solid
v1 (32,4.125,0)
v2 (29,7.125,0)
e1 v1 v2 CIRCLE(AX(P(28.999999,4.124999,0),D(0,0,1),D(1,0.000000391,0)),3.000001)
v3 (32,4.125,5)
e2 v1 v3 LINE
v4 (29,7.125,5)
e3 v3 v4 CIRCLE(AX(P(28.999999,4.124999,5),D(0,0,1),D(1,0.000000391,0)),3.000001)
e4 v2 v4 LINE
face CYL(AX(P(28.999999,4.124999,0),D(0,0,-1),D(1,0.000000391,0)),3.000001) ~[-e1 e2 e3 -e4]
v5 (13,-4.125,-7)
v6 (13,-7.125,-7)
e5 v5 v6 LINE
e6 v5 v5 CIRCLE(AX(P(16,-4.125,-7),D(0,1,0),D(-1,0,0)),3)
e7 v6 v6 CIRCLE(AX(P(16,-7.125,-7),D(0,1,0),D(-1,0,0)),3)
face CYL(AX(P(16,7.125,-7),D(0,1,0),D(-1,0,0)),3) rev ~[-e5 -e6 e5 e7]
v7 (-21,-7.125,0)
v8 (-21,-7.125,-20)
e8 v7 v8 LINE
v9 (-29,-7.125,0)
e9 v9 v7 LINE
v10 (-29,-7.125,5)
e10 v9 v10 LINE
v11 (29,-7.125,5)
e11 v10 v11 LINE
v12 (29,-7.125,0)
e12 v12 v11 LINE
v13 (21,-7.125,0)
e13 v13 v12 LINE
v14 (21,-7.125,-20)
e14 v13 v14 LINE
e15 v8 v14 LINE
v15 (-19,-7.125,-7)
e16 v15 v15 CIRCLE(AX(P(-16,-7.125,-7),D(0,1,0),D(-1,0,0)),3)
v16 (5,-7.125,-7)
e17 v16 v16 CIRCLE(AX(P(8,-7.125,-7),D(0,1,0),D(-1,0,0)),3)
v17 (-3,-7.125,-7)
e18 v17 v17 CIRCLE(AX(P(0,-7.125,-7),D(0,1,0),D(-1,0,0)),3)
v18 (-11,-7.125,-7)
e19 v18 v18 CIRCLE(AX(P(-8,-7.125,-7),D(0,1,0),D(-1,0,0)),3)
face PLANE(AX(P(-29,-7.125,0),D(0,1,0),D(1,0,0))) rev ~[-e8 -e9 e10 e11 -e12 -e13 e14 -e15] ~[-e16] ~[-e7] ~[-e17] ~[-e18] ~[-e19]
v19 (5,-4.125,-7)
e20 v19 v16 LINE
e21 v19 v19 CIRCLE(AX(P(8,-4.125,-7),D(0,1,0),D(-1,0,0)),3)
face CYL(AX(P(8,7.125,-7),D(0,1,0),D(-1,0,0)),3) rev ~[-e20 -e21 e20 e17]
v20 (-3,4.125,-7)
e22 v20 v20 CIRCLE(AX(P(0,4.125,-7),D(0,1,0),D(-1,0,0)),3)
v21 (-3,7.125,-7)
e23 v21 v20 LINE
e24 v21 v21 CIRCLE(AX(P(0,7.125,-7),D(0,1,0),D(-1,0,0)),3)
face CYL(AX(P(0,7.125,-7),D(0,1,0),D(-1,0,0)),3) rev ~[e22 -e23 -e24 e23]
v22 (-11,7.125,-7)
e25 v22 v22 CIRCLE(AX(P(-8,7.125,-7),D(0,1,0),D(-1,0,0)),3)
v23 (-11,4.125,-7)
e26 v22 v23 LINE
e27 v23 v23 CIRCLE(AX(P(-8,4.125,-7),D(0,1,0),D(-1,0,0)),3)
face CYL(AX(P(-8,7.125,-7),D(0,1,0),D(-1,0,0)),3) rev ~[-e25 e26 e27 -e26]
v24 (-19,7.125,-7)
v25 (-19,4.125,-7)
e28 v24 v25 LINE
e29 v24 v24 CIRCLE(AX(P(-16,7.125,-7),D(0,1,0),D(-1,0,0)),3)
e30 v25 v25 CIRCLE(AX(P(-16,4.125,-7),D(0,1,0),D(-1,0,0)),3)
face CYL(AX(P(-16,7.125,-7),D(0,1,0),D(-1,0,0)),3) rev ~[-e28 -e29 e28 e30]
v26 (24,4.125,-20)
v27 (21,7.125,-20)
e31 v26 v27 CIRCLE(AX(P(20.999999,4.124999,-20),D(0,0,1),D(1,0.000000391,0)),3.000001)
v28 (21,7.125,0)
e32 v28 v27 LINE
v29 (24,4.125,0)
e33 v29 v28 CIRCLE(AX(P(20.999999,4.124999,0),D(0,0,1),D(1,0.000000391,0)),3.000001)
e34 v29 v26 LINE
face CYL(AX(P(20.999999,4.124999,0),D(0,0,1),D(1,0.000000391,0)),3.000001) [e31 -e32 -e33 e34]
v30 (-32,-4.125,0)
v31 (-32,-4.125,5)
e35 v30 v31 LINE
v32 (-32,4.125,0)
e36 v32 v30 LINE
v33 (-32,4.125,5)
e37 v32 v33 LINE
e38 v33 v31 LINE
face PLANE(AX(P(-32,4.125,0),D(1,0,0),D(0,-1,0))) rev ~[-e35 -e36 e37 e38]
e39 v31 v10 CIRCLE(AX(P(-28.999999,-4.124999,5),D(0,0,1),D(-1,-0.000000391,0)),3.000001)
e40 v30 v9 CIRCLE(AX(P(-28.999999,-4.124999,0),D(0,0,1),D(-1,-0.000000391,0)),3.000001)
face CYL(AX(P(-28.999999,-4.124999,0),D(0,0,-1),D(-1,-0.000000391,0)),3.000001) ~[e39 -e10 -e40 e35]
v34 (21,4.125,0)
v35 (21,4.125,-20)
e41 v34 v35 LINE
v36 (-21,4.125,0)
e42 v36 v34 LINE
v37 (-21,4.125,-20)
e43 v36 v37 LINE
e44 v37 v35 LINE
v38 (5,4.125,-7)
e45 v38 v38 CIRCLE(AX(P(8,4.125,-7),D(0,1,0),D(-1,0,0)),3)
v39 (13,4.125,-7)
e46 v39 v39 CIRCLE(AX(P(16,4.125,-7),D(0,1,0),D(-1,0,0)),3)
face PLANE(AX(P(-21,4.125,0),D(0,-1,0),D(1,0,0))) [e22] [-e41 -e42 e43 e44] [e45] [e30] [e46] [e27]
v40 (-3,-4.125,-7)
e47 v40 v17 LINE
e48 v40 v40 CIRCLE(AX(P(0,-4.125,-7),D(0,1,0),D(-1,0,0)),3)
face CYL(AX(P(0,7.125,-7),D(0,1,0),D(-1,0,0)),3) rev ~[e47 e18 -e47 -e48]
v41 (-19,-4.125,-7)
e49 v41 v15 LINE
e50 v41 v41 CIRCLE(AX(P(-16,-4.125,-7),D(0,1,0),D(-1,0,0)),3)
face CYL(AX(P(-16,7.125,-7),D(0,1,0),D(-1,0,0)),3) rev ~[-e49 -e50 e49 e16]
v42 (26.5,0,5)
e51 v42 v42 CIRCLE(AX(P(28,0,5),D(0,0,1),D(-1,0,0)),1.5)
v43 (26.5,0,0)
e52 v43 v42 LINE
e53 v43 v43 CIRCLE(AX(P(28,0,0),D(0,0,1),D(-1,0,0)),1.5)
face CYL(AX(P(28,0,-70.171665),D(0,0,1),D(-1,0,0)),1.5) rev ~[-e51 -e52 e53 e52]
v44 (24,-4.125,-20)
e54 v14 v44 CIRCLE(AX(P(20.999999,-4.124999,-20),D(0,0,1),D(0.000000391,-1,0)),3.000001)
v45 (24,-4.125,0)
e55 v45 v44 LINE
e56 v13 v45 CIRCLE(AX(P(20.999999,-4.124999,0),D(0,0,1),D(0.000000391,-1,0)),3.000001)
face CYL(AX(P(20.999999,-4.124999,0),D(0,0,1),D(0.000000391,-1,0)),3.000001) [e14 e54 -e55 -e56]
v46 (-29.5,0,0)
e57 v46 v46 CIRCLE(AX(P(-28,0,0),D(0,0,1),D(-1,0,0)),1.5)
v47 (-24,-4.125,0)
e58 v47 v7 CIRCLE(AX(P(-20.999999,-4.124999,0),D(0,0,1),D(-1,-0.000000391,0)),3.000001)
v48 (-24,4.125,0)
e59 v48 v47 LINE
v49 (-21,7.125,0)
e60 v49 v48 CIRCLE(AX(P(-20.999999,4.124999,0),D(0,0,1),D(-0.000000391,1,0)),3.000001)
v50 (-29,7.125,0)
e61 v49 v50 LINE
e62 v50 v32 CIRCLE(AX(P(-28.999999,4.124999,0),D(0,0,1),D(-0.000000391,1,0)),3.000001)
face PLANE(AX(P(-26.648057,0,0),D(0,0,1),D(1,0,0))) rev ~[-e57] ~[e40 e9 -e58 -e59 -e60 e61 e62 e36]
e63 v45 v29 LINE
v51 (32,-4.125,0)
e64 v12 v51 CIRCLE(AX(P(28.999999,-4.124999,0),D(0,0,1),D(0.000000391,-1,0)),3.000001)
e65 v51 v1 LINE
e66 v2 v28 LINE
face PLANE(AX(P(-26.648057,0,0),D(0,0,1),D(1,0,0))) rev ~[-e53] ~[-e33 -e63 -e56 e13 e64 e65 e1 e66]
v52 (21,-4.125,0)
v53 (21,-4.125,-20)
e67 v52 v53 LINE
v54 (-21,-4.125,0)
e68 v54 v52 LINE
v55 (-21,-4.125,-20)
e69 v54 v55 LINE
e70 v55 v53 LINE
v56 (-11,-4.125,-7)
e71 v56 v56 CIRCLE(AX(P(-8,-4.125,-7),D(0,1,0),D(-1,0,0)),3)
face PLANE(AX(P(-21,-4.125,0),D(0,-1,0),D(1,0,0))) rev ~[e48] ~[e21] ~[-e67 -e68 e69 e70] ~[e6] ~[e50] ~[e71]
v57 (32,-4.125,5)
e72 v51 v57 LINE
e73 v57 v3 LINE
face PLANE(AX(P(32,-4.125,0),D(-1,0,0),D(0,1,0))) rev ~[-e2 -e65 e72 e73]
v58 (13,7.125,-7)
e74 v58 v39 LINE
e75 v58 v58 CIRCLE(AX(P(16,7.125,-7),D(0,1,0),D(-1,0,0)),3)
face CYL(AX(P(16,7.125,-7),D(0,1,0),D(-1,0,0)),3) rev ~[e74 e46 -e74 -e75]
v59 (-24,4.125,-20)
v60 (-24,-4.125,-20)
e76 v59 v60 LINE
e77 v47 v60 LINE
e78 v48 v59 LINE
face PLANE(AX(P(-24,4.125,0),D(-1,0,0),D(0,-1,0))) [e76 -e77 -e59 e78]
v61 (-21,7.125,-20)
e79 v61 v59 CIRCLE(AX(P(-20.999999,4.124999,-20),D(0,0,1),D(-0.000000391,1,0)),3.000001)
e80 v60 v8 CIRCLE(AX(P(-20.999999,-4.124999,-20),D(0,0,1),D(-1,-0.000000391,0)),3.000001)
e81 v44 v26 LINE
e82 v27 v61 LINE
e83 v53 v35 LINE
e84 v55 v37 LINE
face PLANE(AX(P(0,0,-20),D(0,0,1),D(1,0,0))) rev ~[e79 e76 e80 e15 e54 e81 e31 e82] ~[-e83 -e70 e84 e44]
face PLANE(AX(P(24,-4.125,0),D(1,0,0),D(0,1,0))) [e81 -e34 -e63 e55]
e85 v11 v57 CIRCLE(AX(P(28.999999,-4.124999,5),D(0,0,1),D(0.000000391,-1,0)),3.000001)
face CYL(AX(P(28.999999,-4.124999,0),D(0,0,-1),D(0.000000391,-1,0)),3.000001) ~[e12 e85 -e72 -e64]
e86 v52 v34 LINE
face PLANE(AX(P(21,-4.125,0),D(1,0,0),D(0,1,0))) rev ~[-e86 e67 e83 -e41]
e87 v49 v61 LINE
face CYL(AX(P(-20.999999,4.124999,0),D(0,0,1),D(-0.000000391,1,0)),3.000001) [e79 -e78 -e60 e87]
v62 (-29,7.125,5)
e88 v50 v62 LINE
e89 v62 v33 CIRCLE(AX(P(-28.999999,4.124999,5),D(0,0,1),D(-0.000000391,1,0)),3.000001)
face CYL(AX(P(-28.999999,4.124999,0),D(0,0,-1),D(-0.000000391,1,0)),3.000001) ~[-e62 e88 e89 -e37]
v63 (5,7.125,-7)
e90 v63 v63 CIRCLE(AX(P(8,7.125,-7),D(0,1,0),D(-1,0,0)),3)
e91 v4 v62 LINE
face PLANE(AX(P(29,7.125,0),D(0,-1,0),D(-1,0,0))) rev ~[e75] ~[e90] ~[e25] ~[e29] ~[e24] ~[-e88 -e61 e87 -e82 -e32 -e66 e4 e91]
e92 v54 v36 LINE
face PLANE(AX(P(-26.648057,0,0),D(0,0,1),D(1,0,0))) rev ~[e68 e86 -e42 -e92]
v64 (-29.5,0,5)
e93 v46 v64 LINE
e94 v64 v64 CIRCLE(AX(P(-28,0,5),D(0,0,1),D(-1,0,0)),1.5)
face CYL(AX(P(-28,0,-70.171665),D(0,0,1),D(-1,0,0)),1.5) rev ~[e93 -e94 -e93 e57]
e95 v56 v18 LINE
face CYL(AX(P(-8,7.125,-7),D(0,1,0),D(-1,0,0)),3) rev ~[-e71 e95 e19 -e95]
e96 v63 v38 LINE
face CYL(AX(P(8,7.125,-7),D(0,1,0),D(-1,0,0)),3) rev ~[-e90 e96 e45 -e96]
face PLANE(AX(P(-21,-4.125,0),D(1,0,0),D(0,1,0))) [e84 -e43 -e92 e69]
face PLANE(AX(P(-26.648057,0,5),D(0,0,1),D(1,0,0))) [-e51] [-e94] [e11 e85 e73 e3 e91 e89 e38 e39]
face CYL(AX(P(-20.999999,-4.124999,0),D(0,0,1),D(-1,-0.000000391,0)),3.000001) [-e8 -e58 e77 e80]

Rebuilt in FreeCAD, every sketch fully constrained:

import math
import FreeCAD as App
import Part
import Sketcher

V = App.Vector

doc = App.newDocument("Part")
body = doc.addObject("PartDesign::Body", "Body")

# Sketch on XY plane
sketch1 = doc.addObject("Sketcher::SketchObject", "Sketch")
body.addObject(sketch1)
sketch1.AttachmentSupport = (doc.XY_Plane, [""])
sketch1.MapMode = "FlatFace"
sketch1.addGeometry([
    Part.ArcOfCircle(Part.Circle(V(-28.999999, 4.124999, 0), V(0, 0, 1), 3.000001), math.radians(90.000022), math.radians(179.999978)),  # 0
    Part.LineSegment(V(-32, 4.125, 0), V(-32, -4.125, 0)),  # 1
    Part.ArcOfCircle(Part.Circle(V(-28.999999, -4.124999, 0), V(0, 0, 1), 3.000001), math.radians(-179.999978), math.radians(-90.000022)),  # 2
    Part.LineSegment(V(-29, -7.125, 0), V(29, -7.125, 0)),  # 3
    Part.ArcOfCircle(Part.Circle(V(28.999999, -4.124999, 0), V(0, 0, 1), 3.000001), math.radians(-89.999978), math.radians(-0.000022)),  # 4
    Part.LineSegment(V(32, -4.125, 0), V(32, 4.125, 0)),  # 5
    Part.ArcOfCircle(Part.Circle(V(28.999999, 4.124999, 0), V(0, 0, 1), 3.000001), math.radians(0.000022), math.radians(89.999978)),  # 6
    Part.LineSegment(V(29, 7.125, 0), V(-29, 7.125, 0)),  # 7
], False)
sketch1.addConstraint([
    Sketcher.Constraint("Tangent", 0, 2, 1, 1),
    Sketcher.Constraint("Tangent", 1, 2, 2, 1),
    Sketcher.Constraint("Tangent", 2, 2, 3, 1),
    Sketcher.Constraint("Tangent", 3, 2, 4, 1),
    Sketcher.Constraint("Tangent", 4, 2, 5, 1),
    Sketcher.Constraint("Tangent", 5, 2, 6, 1),
    Sketcher.Constraint("Tangent", 6, 2, 7, 1),
    Sketcher.Constraint("Tangent", 7, 2, 0, 1),
    Sketcher.Constraint("Vertical", 1),
    Sketcher.Constraint("Horizontal", 3),
    Sketcher.Constraint("Vertical", 5),
    Sketcher.Constraint("Horizontal", 7),
    Sketcher.Constraint("Equal", 0, 2),
    Sketcher.Constraint("Equal", 2, 4),
    Sketcher.Constraint("Equal", 4, 6),
    Sketcher.Constraint("Symmetric", 0, 3, 4, 3, -1, 1),
    Sketcher.Constraint("Radius", 0, 3.000001),
    Sketcher.Constraint("DistanceX", 3, 1, 3, 2, 58.0),
    Sketcher.Constraint("DistanceY", 1, 2, 1, 1, 8.25),
])
pad1 = doc.addObject("PartDesign::Pad", "Pad")
body.addObject(pad1)
pad1.Profile = sketch1
pad1.Length = 5

# Sketch on XY plane
sketch2 = doc.addObject("Sketcher::SketchObject", "Sketch001")
body.addObject(sketch2)
sketch2.AttachmentSupport = (doc.XY_Plane, [""])
sketch2.MapMode = "FlatFace"
sketch2.addGeometry([
    Part.ArcOfCircle(Part.Circle(V(20.999999, 4.124999, 0), V(0, 0, 1), 3.000001), math.radians(0.000022), math.radians(89.999978)),  # 0
    Part.LineSegment(V(21, 7.125, 0), V(-21, 7.125, 0)),  # 1
    Part.ArcOfCircle(Part.Circle(V(-20.999999, 4.124999, 0), V(0, 0, 1), 3.000001), math.radians(90.000022), math.radians(179.999978)),  # 2
    Part.LineSegment(V(-24, 4.125, 0), V(-24, -4.125, 0)),  # 3
    Part.ArcOfCircle(Part.Circle(V(-20.999999, -4.124999, 0), V(0, 0, 1), 3.000001), math.radians(-179.999978), math.radians(-90.000022)),  # 4
    Part.LineSegment(V(-21, -7.125, 0), V(21, -7.125, 0)),  # 5
    Part.ArcOfCircle(Part.Circle(V(20.999999, -4.124999, 0), V(0, 0, 1), 3.000001), math.radians(-89.999978), math.radians(-0.000022)),  # 6
    Part.LineSegment(V(24, -4.125, 0), V(24, 4.125, 0)),  # 7
    Part.LineSegment(V(21, -4.125, 0), V(-21, -4.125, 0)),  # 8
    Part.LineSegment(V(-21, -4.125, 0), V(-21, 4.125, 0)),  # 9
    Part.LineSegment(V(-21, 4.125, 0), V(21, 4.125, 0)),  # 10
    Part.LineSegment(V(21, 4.125, 0), V(21, -4.125, 0)),  # 11
], False)
sketch2.addConstraint([
    Sketcher.Constraint("Tangent", 0, 2, 1, 1),
    Sketcher.Constraint("Tangent", 1, 2, 2, 1),
    Sketcher.Constraint("Tangent", 2, 2, 3, 1),
    Sketcher.Constraint("Tangent", 3, 2, 4, 1),
    Sketcher.Constraint("Tangent", 4, 2, 5, 1),
    Sketcher.Constraint("Tangent", 5, 2, 6, 1),
    Sketcher.Constraint("Tangent", 6, 2, 7, 1),
    Sketcher.Constraint("Tangent", 7, 2, 0, 1),
    Sketcher.Constraint("Coincident", 8, 2, 9, 1),
    Sketcher.Constraint("Coincident", 9, 2, 10, 1),
    Sketcher.Constraint("Coincident", 10, 2, 11, 1),
    Sketcher.Constraint("Coincident", 11, 2, 8, 1),
    Sketcher.Constraint("Horizontal", 1),
    Sketcher.Constraint("Vertical", 3),
    Sketcher.Constraint("Horizontal", 5),
    Sketcher.Constraint("Vertical", 7),
    Sketcher.Constraint("Horizontal", 8),
    Sketcher.Constraint("Vertical", 9),
    Sketcher.Constraint("Horizontal", 10),
    Sketcher.Constraint("Vertical", 11),
    Sketcher.Constraint("Coincident", 8, 2, 4, 3),
    Sketcher.Constraint("Coincident", 9, 2, 2, 3),
    Sketcher.Constraint("Coincident", 10, 2, 0, 3),
    Sketcher.Constraint("Equal", 4, 6),
    Sketcher.Constraint("Symmetric", 0, 3, 4, 3, -1, 1),
    Sketcher.Constraint("Radius", 0, 3.000001),
    Sketcher.Constraint("DistanceX", 1, 2, 1, 1, 42.0),
    Sketcher.Constraint("DistanceY", 3, 2, 3, 1, 8.25),
])
pad2 = doc.addObject("PartDesign::Pad", "Pad001")
body.addObject(pad2)
pad2.Profile = sketch2
pad2.Length = 20
pad2.Reversed = True

# Sketch on XZ plane
sketch3 = doc.addObject("Sketcher::SketchObject", "Sketch002")
body.addObject(sketch3)
sketch3.AttachmentSupport = (doc.XZ_Plane, [""])
sketch3.MapMode = "FlatFace"
sketch3.AttachmentOffset = App.Placement(V(0, 0, -7.125), App.Rotation())
sketch3.addGeometry([
    Part.Circle(V(16, -7, 0), V(0, 0, 1), 3),  # 0
    Part.Circle(V(8, -7, 0), V(0, 0, 1), 3),  # 1
    Part.Circle(V(0, -7, 0), V(0, 0, 1), 3),  # 2
    Part.Circle(V(-8, -7, 0), V(0, 0, 1), 3),  # 3
    Part.Circle(V(-16, -7, 0), V(0, 0, 1), 3),  # 4
], False)
sketch3.addConstraint([
    Sketcher.Constraint("Equal", 0, 1),
    Sketcher.Constraint("Equal", 1, 2),
    Sketcher.Constraint("Equal", 2, 3),
    Sketcher.Constraint("Equal", 3, 4),
    Sketcher.Constraint("Symmetric", 1, 3, 3, 3, -2),
    Sketcher.Constraint("Symmetric", 0, 3, 4, 3, -2),
    Sketcher.Constraint("PointOnObject", 2, 3, -2),
    Sketcher.Constraint("Horizontal", 0, 3, 1, 3),
    Sketcher.Constraint("Horizontal", 1, 3, 2, 3),
    Sketcher.Constraint("Diameter", 0, 6.0),
    Sketcher.Constraint("DistanceX", -1, 1, 0, 3, 16.0),
    Sketcher.Constraint("DistanceY", 0, 3, -1, 1, 7.0),
    Sketcher.Constraint("DistanceX", -1, 1, 1, 3, 8.0),
])
pocket1 = doc.addObject("PartDesign::Pocket", "Pocket")
body.addObject(pocket1)
pocket1.Profile = sketch3
pocket1.Length = 25
pocket1.Reversed = True

# Sketch on XY plane
sketch4 = doc.addObject("Sketcher::SketchObject", "Sketch003")
body.addObject(sketch4)
sketch4.AttachmentSupport = (doc.XY_Plane, [""])
sketch4.MapMode = "FlatFace"
sketch4.addGeometry([
    Part.Circle(V(28, 0, 0), V(0, 0, 1), 1.5),
    Part.Circle(V(-28, 0, 0), V(0, 0, 1), 1.5),
], False)
sketch4.addConstraint([
    Sketcher.Constraint("Equal", 0, 1),
    Sketcher.Constraint("Symmetric", 0, 3, 1, 3, -1, 1),
    Sketcher.Constraint("PointOnObject", 0, 3, -1),
    Sketcher.Constraint("Diameter", 0, 3.0),
    Sketcher.Constraint("DistanceX", -1, 1, 0, 3, 28.0),
])
doc.recompute()
hole = doc.addObject("PartDesign::Hole", "Hole")
body.addObject(hole)
hole.Profile = sketch4
hole.ThreadType = "None"
hole.Diameter = 3
hole.DepthType = "ThroughAll"
hole.Reversed = True

doc.recompute()
